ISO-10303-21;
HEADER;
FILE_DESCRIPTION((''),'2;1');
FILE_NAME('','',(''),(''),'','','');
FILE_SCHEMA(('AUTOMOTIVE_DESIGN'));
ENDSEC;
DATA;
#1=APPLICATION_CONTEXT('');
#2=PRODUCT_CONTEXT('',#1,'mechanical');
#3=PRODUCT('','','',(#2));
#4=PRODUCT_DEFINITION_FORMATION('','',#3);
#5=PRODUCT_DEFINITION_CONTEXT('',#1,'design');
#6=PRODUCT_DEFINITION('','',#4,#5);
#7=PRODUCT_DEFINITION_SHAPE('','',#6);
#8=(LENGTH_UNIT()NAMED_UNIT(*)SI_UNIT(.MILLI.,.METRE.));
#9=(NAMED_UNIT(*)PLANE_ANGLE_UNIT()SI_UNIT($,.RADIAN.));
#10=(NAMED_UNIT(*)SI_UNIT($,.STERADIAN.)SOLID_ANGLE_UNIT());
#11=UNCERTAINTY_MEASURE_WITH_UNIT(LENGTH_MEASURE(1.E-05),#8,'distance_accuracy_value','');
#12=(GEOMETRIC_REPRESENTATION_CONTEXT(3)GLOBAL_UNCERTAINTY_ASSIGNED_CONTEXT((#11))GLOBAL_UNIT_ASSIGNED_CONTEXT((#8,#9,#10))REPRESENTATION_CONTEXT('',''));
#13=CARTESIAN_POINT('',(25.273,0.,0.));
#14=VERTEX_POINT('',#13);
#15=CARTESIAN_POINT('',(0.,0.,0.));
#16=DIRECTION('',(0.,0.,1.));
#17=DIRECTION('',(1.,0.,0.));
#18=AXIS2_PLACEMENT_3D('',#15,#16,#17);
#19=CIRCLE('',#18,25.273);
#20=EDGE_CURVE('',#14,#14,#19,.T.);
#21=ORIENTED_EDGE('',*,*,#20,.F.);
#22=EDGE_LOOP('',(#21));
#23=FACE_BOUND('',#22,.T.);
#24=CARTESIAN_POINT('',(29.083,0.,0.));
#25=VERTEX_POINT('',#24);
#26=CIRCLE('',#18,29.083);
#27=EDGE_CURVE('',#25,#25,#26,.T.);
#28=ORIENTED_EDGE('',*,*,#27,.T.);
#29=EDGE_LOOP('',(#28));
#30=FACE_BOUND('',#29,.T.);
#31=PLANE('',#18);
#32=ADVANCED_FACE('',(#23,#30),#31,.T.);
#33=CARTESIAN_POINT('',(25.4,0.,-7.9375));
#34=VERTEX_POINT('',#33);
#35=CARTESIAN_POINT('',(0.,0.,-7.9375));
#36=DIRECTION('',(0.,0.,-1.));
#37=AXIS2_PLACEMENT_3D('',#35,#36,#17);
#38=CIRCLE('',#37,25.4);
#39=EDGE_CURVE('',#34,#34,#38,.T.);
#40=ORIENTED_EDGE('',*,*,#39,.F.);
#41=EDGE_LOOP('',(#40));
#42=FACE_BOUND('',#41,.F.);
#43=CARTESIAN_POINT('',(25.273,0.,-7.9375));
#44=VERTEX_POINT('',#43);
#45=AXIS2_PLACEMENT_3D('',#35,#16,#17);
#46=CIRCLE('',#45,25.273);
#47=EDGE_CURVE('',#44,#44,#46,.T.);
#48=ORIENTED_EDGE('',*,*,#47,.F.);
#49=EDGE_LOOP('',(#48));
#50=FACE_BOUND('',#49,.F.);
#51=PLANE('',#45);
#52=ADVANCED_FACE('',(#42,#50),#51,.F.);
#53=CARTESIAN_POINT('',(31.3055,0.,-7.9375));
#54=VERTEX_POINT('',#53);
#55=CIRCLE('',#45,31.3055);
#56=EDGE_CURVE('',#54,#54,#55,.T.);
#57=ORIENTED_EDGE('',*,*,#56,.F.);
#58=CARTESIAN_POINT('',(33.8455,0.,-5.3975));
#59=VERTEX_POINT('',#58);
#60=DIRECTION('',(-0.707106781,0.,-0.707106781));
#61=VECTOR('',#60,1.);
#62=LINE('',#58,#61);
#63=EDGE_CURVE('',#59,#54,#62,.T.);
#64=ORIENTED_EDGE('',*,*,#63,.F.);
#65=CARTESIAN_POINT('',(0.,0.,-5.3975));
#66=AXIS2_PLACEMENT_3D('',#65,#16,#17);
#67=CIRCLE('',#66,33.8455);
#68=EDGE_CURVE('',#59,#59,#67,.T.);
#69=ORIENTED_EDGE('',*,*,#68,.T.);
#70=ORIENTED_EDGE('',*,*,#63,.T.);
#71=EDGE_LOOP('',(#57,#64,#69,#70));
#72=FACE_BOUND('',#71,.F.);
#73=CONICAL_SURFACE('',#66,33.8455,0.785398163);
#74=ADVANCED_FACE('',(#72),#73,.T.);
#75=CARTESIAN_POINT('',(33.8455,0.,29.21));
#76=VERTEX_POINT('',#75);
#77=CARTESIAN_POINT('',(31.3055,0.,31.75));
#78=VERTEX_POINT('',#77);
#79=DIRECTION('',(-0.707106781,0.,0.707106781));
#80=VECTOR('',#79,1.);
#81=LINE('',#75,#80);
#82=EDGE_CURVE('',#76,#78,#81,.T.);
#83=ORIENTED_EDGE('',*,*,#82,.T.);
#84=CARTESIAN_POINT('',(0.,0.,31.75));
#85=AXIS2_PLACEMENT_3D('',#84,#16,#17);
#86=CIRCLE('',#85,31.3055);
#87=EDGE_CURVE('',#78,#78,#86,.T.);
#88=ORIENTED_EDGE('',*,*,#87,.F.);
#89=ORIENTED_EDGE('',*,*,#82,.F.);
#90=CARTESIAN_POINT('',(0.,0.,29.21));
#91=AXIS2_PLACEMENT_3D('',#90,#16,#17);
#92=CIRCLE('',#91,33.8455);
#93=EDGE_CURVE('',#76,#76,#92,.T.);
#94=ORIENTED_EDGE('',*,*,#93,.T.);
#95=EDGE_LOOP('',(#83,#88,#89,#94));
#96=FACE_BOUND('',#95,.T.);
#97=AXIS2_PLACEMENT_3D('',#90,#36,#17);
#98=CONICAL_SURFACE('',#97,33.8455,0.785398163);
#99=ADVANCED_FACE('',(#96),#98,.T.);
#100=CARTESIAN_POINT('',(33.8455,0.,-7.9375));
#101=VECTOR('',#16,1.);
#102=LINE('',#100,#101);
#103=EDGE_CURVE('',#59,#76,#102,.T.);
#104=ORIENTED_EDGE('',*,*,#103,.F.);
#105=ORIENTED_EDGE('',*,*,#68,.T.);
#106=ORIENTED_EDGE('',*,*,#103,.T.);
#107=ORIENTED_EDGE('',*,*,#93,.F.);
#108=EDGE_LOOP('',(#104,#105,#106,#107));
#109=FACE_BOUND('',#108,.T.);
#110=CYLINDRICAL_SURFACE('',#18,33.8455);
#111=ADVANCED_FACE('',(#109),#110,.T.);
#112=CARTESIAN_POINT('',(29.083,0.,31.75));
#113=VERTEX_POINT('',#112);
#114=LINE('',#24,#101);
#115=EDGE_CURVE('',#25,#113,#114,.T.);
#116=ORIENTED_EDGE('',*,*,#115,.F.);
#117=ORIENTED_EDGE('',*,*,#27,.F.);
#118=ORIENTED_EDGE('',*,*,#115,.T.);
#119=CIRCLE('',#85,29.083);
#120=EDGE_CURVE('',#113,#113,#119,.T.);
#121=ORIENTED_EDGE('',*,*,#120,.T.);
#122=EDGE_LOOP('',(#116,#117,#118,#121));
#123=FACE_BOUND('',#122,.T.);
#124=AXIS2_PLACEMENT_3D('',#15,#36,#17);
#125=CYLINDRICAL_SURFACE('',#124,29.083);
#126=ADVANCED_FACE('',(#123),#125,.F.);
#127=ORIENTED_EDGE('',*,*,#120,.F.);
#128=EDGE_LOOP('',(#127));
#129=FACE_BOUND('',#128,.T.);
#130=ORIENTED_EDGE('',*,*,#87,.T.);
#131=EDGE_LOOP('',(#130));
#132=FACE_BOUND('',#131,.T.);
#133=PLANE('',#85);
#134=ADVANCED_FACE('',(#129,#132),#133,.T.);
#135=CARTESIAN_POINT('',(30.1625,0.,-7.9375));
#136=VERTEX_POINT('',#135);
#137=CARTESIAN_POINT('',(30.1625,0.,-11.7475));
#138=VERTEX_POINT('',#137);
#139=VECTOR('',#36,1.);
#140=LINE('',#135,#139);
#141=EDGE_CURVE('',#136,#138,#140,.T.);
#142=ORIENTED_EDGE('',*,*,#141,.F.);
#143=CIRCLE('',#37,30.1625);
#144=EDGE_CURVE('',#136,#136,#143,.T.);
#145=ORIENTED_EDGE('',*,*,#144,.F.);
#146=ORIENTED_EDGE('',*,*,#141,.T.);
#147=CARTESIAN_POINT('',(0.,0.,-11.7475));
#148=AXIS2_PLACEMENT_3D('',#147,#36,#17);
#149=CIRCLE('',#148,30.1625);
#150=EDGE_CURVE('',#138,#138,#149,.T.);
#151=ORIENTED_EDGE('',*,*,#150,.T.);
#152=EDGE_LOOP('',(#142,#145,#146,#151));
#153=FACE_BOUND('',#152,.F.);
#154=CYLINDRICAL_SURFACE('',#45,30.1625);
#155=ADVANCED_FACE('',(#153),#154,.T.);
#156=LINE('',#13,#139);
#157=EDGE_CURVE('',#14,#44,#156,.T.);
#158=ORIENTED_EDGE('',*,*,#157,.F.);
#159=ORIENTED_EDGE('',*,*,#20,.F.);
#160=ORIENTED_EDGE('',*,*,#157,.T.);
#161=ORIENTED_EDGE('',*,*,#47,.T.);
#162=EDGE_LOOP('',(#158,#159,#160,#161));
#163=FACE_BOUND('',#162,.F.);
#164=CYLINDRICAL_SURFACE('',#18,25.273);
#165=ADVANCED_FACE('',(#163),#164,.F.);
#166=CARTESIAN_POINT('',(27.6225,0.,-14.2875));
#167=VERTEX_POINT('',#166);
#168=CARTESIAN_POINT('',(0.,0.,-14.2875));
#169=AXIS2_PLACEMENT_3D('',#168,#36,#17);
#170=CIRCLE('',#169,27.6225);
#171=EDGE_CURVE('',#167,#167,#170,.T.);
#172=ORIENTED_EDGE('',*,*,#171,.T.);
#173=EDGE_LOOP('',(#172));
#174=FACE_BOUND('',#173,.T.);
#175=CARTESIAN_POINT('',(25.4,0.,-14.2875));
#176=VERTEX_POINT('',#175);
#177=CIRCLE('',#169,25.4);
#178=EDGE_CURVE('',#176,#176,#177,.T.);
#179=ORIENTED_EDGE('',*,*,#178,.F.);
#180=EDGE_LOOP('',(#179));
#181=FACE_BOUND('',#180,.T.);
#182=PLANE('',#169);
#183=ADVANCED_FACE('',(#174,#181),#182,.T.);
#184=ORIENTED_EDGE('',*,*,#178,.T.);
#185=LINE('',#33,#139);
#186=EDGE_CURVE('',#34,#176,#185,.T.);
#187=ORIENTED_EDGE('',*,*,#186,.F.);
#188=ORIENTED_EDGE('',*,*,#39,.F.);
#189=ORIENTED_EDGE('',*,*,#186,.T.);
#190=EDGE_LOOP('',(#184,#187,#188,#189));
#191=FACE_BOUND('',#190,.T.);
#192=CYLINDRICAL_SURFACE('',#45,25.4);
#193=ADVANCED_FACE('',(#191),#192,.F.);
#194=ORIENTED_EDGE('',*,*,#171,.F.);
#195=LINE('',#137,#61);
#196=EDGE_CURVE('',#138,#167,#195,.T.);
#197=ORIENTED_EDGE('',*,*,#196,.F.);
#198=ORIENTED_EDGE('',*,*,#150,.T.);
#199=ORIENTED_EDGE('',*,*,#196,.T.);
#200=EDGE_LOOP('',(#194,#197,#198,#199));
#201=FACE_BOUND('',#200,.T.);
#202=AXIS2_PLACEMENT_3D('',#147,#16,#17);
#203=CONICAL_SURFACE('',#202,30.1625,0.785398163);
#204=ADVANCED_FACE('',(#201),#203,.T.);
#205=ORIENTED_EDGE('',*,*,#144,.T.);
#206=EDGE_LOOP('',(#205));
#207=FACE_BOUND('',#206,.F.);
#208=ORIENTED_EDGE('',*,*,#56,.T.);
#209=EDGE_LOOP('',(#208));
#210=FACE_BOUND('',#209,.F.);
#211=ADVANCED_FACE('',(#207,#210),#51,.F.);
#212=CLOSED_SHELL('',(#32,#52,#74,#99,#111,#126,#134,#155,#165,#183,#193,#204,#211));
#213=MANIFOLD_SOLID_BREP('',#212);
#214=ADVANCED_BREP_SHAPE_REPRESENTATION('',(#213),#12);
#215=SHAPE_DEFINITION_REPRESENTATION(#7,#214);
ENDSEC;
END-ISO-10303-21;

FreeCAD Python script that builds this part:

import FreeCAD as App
import Part
import Sketcher
Q = App.Units.Quantity


def edges_at(feature, points):
    """Names of the edges that pass closest to the given points."""
    edges = feature.Shape.Edges
    near = lambda p: min(range(len(edges)), key=lambda i: edges[i].distToShape(Part.Vertex(*p))[0])
    return sorted({f"Edge{near(p) + 1}" for p in points})

doc = App.newDocument("Part")
body = doc.addObject("PartDesign::Body", "Body")

# Sketch on XY plane
sketch1 = body.newObject("Sketcher::SketchObject", "Sketch")
sketch1.AttachmentSupport = (doc.getObject("XY_Plane"), [""])
sketch1.MapMode = "FlatFace"
sketch1.addGeometry([
    Part.Circle(App.Vector(0, 0, 0), App.Vector(0, 0, 1), 34),
    Part.Circle(App.Vector(0, 0, 0), App.Vector(0, 0, 1), 29),
], False)
sketch1.addConstraint([
    Sketcher.Constraint("Coincident", 0, 3, -1, 1),
    Sketcher.Constraint("Coincident", 1, 3, -1, 1),
    Sketcher.Constraint("Diameter", 1, Q("2.29 in")),
    Sketcher.Constraint("Diameter", 0, Q("2.665 in")),
])
pad1 = body.newObject("PartDesign::Pad", "Pad")
pad1.Profile = sketch1
pad1.Length = Q("1.25 in")

# Sketch on XY plane
sketch2 = body.newObject("Sketcher::SketchObject", "Sketch001")
sketch2.AttachmentSupport = (doc.getObject("XY_Plane"), [""])
sketch2.MapMode = "FlatFace"
sketch2.addGeometry([
    Part.Circle(App.Vector(0, 0, 0), App.Vector(0, 0, 1), 34),
    Part.Circle(App.Vector(0, 0, 0), App.Vector(0, 0, 1), 25),
], False)
sketch2.addConstraint([
    Sketcher.Constraint("Coincident", 0, 3, -1, 1),
    Sketcher.Constraint("Coincident", 1, 3, -1, 1),
    Sketcher.Constraint("Diameter", 1, Q("1.99 in")),
    Sketcher.Constraint("Diameter", 0, Q("2.665 in")),
])
pad2 = body.newObject("PartDesign::Pad", "Pad001")
pad2.Profile = sketch2
pad2.Length = Q("0.3125 in")
pad2.Reversed = True

# Sketch on XY plane
sketch3 = body.newObject("Sketcher::SketchObject", "Sketch002")
sketch3.AttachmentSupport = (doc.getObject("XY_Plane"), [""])
sketch3.MapMode = "FlatFace"
sketch3.AttachmentOffset = App.Placement(App.Vector(0, 0, -0.3125 * 25.4), App.Rotation())
sketch3.addGeometry([
    Part.Circle(App.Vector(0, 0, 0), App.Vector(0, 0, 1), 30),
    Part.Circle(App.Vector(0, 0, 0), App.Vector(0, 0, 1), 25),
], False)
sketch3.addConstraint([
    Sketcher.Constraint("Coincident", 0, 3, -1, 1),
    Sketcher.Constraint("Coincident", 1, 3, -1, 1),
    Sketcher.Constraint("Diameter", 1, Q("2 in")),
    Sketcher.Constraint("Diameter", 0, Q("2.375 in")),
])
pad3 = body.newObject("PartDesign::Pad", "Pad002")
pad3.Profile = sketch3
pad3.Length = Q("0.25 in")
pad3.Reversed = True
doc.recompute()

chamfer = body.newObject("PartDesign::Chamfer", "Chamfer")
chamfer.Base = (pad3, edges_at(pad3, [(-33.846, 0, 31.75), (-33.846, 0, -7.938), (-30.163, 0, -14.287)]))
chamfer.Size = Q("0.1 in")

doc.recompute()
